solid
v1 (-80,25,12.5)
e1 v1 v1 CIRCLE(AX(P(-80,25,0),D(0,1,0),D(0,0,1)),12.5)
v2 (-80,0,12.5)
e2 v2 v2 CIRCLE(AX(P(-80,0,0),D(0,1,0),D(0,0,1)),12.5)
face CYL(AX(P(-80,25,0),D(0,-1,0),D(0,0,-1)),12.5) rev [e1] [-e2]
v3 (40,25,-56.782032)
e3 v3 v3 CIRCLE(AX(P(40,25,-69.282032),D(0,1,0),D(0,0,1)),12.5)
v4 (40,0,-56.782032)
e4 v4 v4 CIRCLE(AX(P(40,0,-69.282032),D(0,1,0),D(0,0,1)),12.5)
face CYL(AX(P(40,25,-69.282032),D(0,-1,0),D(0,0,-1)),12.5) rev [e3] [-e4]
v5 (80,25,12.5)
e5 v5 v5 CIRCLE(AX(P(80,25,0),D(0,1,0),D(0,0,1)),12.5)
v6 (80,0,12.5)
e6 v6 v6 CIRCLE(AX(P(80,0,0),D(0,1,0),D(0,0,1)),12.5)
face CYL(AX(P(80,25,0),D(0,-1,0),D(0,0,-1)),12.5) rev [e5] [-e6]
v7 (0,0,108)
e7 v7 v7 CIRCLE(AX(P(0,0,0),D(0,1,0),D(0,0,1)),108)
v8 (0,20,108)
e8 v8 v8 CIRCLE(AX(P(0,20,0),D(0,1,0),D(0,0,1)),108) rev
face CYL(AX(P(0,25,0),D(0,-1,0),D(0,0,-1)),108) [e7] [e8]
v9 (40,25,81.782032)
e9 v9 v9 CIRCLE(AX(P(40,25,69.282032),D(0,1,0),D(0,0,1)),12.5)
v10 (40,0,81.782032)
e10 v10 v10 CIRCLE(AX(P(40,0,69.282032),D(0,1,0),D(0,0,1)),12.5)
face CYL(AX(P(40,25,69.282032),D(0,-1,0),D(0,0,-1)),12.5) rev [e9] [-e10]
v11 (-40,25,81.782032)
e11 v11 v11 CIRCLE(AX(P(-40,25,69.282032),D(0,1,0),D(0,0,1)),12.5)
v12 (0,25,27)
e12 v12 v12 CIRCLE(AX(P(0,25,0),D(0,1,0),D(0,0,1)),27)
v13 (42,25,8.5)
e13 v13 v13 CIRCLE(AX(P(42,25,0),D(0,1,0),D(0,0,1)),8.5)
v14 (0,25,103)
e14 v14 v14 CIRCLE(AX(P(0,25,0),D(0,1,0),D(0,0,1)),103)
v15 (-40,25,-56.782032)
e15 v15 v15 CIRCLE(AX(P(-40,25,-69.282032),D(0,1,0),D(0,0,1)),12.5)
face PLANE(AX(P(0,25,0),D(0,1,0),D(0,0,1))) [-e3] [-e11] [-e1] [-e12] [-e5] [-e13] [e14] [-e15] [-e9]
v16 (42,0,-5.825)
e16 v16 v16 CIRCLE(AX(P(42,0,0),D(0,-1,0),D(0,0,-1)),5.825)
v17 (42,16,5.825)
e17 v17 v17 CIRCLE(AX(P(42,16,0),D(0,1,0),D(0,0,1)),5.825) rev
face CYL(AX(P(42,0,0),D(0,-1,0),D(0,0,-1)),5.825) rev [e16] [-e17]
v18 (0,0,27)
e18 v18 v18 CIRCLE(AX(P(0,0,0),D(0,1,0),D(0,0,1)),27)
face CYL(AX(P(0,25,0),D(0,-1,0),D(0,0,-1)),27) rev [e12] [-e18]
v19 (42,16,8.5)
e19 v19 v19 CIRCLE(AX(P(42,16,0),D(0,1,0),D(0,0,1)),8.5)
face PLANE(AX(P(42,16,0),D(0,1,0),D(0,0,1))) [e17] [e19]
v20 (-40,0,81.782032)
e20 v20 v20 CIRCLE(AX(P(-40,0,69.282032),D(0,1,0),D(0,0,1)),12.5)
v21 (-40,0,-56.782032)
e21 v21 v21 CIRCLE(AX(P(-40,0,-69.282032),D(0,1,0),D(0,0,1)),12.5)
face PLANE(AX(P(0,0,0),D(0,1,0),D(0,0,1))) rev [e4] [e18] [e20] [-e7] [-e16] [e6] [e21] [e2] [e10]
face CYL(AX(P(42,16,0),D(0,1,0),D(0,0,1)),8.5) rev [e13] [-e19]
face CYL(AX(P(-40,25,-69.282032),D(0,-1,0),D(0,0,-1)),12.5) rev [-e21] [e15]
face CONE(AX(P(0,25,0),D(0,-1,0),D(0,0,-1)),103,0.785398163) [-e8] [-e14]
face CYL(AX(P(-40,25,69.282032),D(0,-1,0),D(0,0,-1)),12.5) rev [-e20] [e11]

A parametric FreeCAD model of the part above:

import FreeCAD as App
import Part
import Sketcher
from FreeCAD import Vector


def edges_at(feature, points):
    """Names of the edges that pass closest to the given points."""
    edges = feature.Shape.Edges
    near = lambda p: min(range(len(edges)), key=lambda i: edges[i].distToShape(Part.Vertex(*p))[0])
    return sorted({f"Edge{near(p) + 1}" for p in points})

doc = App.newDocument("Part")
params = doc.addObject("Spreadsheet::Sheet", "Params")
for row, (alias, value) in enumerate([
    ("sketch1_diameter", "216 mm"),
    ("sketch1_diameter2", "25 mm"),
    ("sketch1_diameter3", "54 mm"),
    ("pad1_length", "25 mm"),
    ("chamfer_size", "5 mm"),
    ("sketch2_diameter", "11.65 mm"),
    ("hole_diameter", "11.65 mm"),
    ("sketch3_diameter", "17 mm"),
    ("pocket1_length", "9 mm"),
], start=1):
    params.set(f"A{row}", alias)
    params.set(f"B{row}", "=" + value)
    params.setAlias(f"B{row}", alias)

body = doc.addObject("PartDesign::Body", "Body")

# Sketch on XZ plane
sketch1 = body.newObject("Sketcher::SketchObject", "Sketch")
sketch1.AttachmentSupport = (doc.getObject("XZ_Plane"), [""])
sketch1.MapMode = "FlatFace"
sketch1.addGeometry([
    Part.Circle(Vector(0, 0, 0), Vector(0, 0, 1), 108),  # 0
    Part.Circle(Vector(-40, -69, 0), Vector(0, 0, 1), 12),  # 1
    Part.Circle(Vector(-80, 0, 0), Vector(0, 0, 1), 12),  # 2
    Part.Circle(Vector(-40, 69, 0), Vector(0, 0, 1), 12),  # 3
    Part.Circle(Vector(40, -69, 0), Vector(0, 0, 1), 12),  # 4
    Part.Circle(Vector(80, 0, 0), Vector(0, 0, 1), 12),  # 5
    Part.Circle(Vector(0, 0, 0), Vector(0, 0, 1), 27),  # 6
    Part.Circle(Vector(40, 69, 0), Vector(0, 0, 1), 12),  # 7
], False)
sketch1.addConstraint([
    Sketcher.Constraint("Coincident", 0, 3, -1, 1),
    Sketcher.Constraint("Coincident", 6, 3, -1, 1),
    Sketcher.Constraint("Equal", 1, 2),
    Sketcher.Constraint("Equal", 2, 3),
    Sketcher.Constraint("Equal", 3, 4),
    Sketcher.Constraint("Equal", 4, 5),
    Sketcher.Constraint("Equal", 5, 7),
    Sketcher.Constraint("Symmetric", 3, 3, 4, 3, -1, 1),
    Sketcher.Constraint("Symmetric", 2, 3, 5, 3, -1, 1),
    Sketcher.Constraint("Symmetric", 1, 3, 7, 3, -1, 1),
    Sketcher.Constraint("Symmetric", 1, 3, 4, 3, -2),
    Sketcher.Constraint("PointOnObject", 2, 3, -1),
    Sketcher.Constraint("Diameter", 0, 216.0),
    Sketcher.Constraint("Diameter", 1, 25.0),
    Sketcher.Constraint("Diameter", 6, 54.0),
    Sketcher.Constraint("DistanceX", 1, 3, -1, 1, 40.0),
    Sketcher.Constraint("DistanceX", 2, 3, -1, 1, 80.0),
    Sketcher.Constraint("DistanceY", 1, 3, -1, 1, 69.282032),
])
sketch1.setExpression("Constraints[12]", "Params.sketch1_diameter")
sketch1.setExpression("Constraints[13]", "Params.sketch1_diameter2")
sketch1.setExpression("Constraints[14]", "Params.sketch1_diameter3")
pad1 = body.newObject("PartDesign::Pad", "Pad")
pad1.Profile = sketch1
pad1.setExpression("Length", "Params.pad1_length")
pad1.Reversed = True
doc.recompute()

chamfer = body.newObject("PartDesign::Chamfer", "Chamfer")
chamfer.Base = (pad1, edges_at(pad1, [(0, 25, -108)]))
chamfer.setExpression("Size", "Params.chamfer_size")

# Sketch on XZ plane
sketch2 = body.newObject("Sketcher::SketchObject", "Sketch001")
sketch2.AttachmentSupport = (doc.getObject("XZ_Plane"), [""])
sketch2.MapMode = "FlatFace"
sketch2.addGeometry(Part.Circle(Vector(42, 0, 0), Vector(0, 0, 1), 6), False)
sketch2.addConstraint([
    Sketcher.Constraint("PointOnObject", 0, 3, -1),
    Sketcher.Constraint("Diameter", 0, 11.65),
    Sketcher.Constraint("DistanceX", -1, 1, 0, 3, 42.0),
])
sketch2.setExpression("Constraints[1]", "Params.sketch2_diameter")
doc.recompute()
hole = body.newObject("PartDesign::Hole", "Hole")
hole.Profile = sketch2
hole.ThreadType = "None"
hole.setExpression("Diameter", "Params.hole_diameter")
hole.DepthType = "ThroughAll"

# Sketch on XZ plane
sketch3 = body.newObject("Sketcher::SketchObject", "Sketch002")
sketch3.AttachmentSupport = (doc.getObject("XZ_Plane"), [""])
sketch3.MapMode = "FlatFace"
sketch3.AttachmentOffset = App.Placement(Vector(0, 0, -25), App.Rotation())
sketch3.addGeometry(Part.Circle(Vector(42, 0, 0), Vector(0, 0, 1), 8), False)
sketch3.addConstraint([
    Sketcher.Constraint("PointOnObject", 0, 3, -1),
    Sketcher.Constraint("Diameter", 0, 17.0),
    Sketcher.Constraint("DistanceX", -1, 1, 0, 3, 42.0),
])
sketch3.setExpression("Constraints[1]", "Params.sketch3_diameter")
pocket1 = body.newObject("PartDesign::Pocket", "Pocket")
pocket1.Profile = sketch3
pocket1.setExpression("Length", "Params.pocket1_length")
pocket1.Reversed = True

doc.recompute()
